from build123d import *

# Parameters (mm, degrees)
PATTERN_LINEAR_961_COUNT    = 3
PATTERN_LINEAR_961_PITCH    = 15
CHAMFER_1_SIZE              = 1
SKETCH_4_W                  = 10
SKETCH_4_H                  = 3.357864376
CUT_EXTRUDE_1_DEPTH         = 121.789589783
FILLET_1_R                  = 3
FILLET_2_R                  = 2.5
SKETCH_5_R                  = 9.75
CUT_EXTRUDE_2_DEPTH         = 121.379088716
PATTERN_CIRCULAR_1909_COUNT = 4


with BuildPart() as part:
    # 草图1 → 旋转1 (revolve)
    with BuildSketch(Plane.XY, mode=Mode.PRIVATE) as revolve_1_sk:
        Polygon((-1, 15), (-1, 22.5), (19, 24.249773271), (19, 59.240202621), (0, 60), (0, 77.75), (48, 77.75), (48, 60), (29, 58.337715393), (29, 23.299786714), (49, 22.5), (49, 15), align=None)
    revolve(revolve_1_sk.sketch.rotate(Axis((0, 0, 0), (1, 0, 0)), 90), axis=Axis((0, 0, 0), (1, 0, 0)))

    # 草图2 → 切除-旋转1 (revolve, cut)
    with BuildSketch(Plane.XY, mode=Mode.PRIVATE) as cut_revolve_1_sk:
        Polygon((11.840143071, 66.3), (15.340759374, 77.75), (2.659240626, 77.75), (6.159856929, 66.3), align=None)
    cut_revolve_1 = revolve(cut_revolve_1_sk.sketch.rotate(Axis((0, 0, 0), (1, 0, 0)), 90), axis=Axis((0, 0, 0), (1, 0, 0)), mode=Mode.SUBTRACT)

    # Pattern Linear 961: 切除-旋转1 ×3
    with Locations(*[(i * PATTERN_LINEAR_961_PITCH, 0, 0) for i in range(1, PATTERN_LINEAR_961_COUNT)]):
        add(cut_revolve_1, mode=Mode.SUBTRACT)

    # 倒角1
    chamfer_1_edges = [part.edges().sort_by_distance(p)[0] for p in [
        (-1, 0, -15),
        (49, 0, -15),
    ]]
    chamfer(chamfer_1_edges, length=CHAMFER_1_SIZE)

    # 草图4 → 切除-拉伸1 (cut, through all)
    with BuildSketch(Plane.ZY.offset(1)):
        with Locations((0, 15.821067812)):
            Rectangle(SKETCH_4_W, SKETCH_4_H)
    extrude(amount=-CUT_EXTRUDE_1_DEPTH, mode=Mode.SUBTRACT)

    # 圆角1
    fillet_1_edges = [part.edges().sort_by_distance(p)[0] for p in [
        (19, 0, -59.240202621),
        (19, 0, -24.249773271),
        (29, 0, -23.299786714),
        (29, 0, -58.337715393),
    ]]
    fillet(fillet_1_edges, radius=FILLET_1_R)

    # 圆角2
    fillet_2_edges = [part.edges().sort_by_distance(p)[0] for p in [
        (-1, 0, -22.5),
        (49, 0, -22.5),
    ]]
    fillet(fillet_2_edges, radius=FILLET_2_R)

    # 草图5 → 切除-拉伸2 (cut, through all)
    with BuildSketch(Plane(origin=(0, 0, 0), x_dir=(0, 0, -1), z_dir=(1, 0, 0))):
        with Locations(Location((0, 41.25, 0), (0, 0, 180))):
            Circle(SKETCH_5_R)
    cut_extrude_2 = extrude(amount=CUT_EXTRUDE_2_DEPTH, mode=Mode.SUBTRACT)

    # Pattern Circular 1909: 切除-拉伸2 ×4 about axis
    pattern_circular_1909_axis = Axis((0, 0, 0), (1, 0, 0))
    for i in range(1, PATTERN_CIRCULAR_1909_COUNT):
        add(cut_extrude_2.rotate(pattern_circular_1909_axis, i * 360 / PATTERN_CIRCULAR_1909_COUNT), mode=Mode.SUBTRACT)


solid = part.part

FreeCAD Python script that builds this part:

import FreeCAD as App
import Part
import Sketcher
from FreeCAD import Vector
Q = App.Units.Quantity


def edges_at(feature, points):
    """Names of the edges that pass closest to the given points."""
    edges = feature.Shape.Edges
    near = lambda p: min(range(len(edges)), key=lambda i: edges[i].distToShape(Part.Vertex(*p))[0])
    return sorted({f"Edge{near(p) + 1}" for p in points})


def add_polygon(sketch, points):
    """Adds a closed chain of lines whose ends are joined by coincident constraints."""
    first, n = sketch.GeometryCount, len(points)
    for a, b in zip(points, points[1:] + points[:1]):
        sketch.addGeometry(Part.LineSegment(App.Vector(*a, 0), App.Vector(*b, 0)), False)
    for i in range(n):
        sketch.addConstraint(Sketcher.Constraint("Coincident", first + i, 2, first + (i + 1) % n, 1))

doc = App.newDocument("Part")
body = doc.addObject("PartDesign::Body", "Body")

# Sketch on XY plane
sketch1 = body.newObject("Sketcher::SketchObject", "Sketch")
sketch1.AttachmentSupport = (doc.getObject("XY_Plane"), [""])
sketch1.MapMode = "FlatFace"
add_polygon(sketch1, [(-1, 22.5), (-1, 15), (49, 15), (49, 22.5), (29, 23.299787), (29, 58.337715), (48, 60), (48, 77.75), (0, 77.75), (0, 60), (19, 59.240203), (19, 24.249773)])  # lines 0-11
sketch1.addConstraint(Sketcher.Constraint("Vertical", 0))
sketch1.addConstraint(Sketcher.Constraint("Horizontal", 1))
sketch1.addConstraint(Sketcher.Constraint("Vertical", 2))
sketch1.addConstraint(Sketcher.Constraint("Vertical", 4))
sketch1.addConstraint(Sketcher.Constraint("Vertical", 6))
sketch1.addConstraint(Sketcher.Constraint("Horizontal", 7))
sketch1.addConstraint(Sketcher.Constraint("Vertical", 8))
sketch1.addConstraint(Sketcher.Constraint("Vertical", 10))
sketch1.addConstraint(Sketcher.Constraint("PointOnObject", 7, 2, -2))
sketch1.addConstraint(Sketcher.Constraint("Parallel", 3, 9))
sketch1.addConstraint(Sketcher.Constraint("Parallel", 5, 11))
sketch1.addConstraint(Sketcher.Constraint("Horizontal", 5, 2, 8, 2))
sketch1.addConstraint(Sketcher.Constraint("Horizontal", 2, 2, 11, 2))
sketch1.addConstraint(Sketcher.Constraint("DistanceX", 1, 1, 1, 2, 50.0))
sketch1.addConstraint(Sketcher.Constraint("DistanceX", 7, 2, 7, 1, 48.0))
sketch1.addConstraint(Sketcher.Constraint("Angle", 5, Q("5 deg")))
sketch1.addConstraint(Sketcher.Constraint("DistanceY", 0, 2, 0, 1, 7.5))
sketch1.addConstraint(Sketcher.Constraint("DistanceX", 0, 2, -1, 1, 1.0))
sketch1.addConstraint(Sketcher.Constraint("DistanceY", -1, 1, 0, 2, 15.0))
sketch1.addConstraint(Sketcher.Constraint("DistanceX", -1, 1, 3, 2, 29.0))
sketch1.addConstraint(Sketcher.Constraint("DistanceY", -1, 1, 5, 2, 60.0))
sketch1.addConstraint(Sketcher.Constraint("DistanceX", -1, 1, 9, 2, 19.0))
sketch1.addConstraint(Sketcher.Constraint("DistanceY", 6, 1, 6, 2, 17.75))
sketch1.addConstraint(Sketcher.Constraint("Angle", 3, Q("177.71 deg")))
revolution = body.newObject("PartDesign::Revolution", "Revolution")
revolution.Profile = sketch1
revolution.ReferenceAxis = (sketch1, ["H_Axis"])
revolution.Angle = 360

# Sketch on XY plane
sketch2 = body.newObject("Sketcher::SketchObject", "Sketch001")
sketch2.AttachmentSupport = (doc.getObject("XY_Plane"), [""])
sketch2.MapMode = "FlatFace"
add_polygon(sketch2, [(11.840143, 66.3), (15.340759, 77.75), (2.659241, 77.75), (6.159857, 66.3)])  # lines 0-3
sketch2.addConstraint(Sketcher.Constraint("Horizontal", 1))
sketch2.addConstraint(Sketcher.Constraint("Horizontal", 3))
sketch2.addConstraint(Sketcher.Constraint("Equal", 0, 2))
sketch2.addConstraint(Sketcher.Constraint("Angle", 0, Q("73 deg")))
sketch2.addConstraint(Sketcher.Constraint("DistanceY", -1, 1, 2, 2, 66.3))
sketch2.addConstraint(Sketcher.Constraint("DistanceY", -1, 1, 0, 2, 77.75))
sketch2.addConstraint(Sketcher.Constraint("DistanceX", 1, 2, 1, 1, 12.681519))
sketch2.addConstraint(Sketcher.Constraint("DistanceX", -1, 1, 0, 2, 15.340759))
groove = body.newObject("PartDesign::Groove", "Groove")
groove.Profile = sketch2
groove.ReferenceAxis = (sketch2, ["H_Axis"])
groove.Angle = 360
doc.recompute()

linearpattern = body.newObject("PartDesign::LinearPattern", "LinearPattern")
linearpattern.Originals = [groove]
linearpattern.Direction = (doc.getObject("X_Axis"), [""])
linearpattern.Mode = "offset"
linearpattern.Offset = 15
linearpattern.Occurrences = 3
body.Tip = linearpattern
doc.recompute()

chamfer = body.newObject("PartDesign::Chamfer", "Chamfer")
chamfer.Base = (linearpattern, edges_at(linearpattern, [(-1, 0, -15), (49, 0, -15)]))
chamfer.Size = 1

# Sketch on YZ plane
sketch3 = body.newObject("Sketcher::SketchObject", "Sketch002")
sketch3.AttachmentSupport = (doc.getObject("YZ_Plane"), [""])
sketch3.MapMode = "FlatFace"
sketch3.AttachmentOffset = App.Placement(Vector(0, 0, -1), App.Rotation())
add_polygon(sketch3, [(17.5, -5), (14.142136, -5), (14.142136, 5), (17.5, 5)])  # lines 0-3
sketch3.addConstraint(Sketcher.Constraint("Horizontal", 0))
sketch3.addConstraint(Sketcher.Constraint("Vertical", 1))
sketch3.addConstraint(Sketcher.Constraint("Horizontal", 2))
sketch3.addConstraint(Sketcher.Constraint("Vertical", 3))
sketch3.addConstraint(Sketcher.Constraint("DistanceY", 1, 1, 1, 2, 10.0))
sketch3.addConstraint(Sketcher.Constraint("DistanceY", 0, 2, -1, 1, 5.0))
sketch3.addConstraint(Sketcher.Constraint("DistanceX", -1, 1, 2, 2, 17.5))
sketch3.addConstraint(Sketcher.Constraint("DistanceX", 0, 2, 0, 1, 3.357864))
pocket1 = body.newObject("PartDesign::Pocket", "Pocket")
pocket1.Profile = sketch3
pocket1.Type = "ThroughAll"
pocket1.Reversed = True
doc.recompute()

fillet = body.newObject("PartDesign::Fillet", "Fillet")
fillet.Base = (pocket1, edges_at(pocket1, [
    (19, 0, -59.24),
    (19, 0, -24.25),
    (29, 0, -23.3),
    (29, 0, -58.338),
]))
fillet.Radius = 3
doc.recompute()

fillet2 = body.newObject("PartDesign::Fillet", "Fillet001")
fillet2.Base = (fillet, edges_at(fillet, [(-1, 0, -22.5), (49, 0, -22.5)]))
fillet2.Radius = 2.5

# Sketch on YZ plane
sketch4 = body.newObject("Sketcher::SketchObject", "Sketch003")
sketch4.AttachmentSupport = (doc.getObject("YZ_Plane"), [""])
sketch4.MapMode = "FlatFace"
sketch4.addGeometry(Part.Circle(Vector(41.25, 0, 0), Vector(0, 0, 1), 9.75), False)
sketch4.addConstraint(Sketcher.Constraint("PointOnObject", 0, 3, -1))
sketch4.addConstraint(Sketcher.Constraint("Diameter", 0, 19.5))
sketch4.addConstraint(Sketcher.Constraint("DistanceX", -1, 1, 0, 3, 41.25))
pocket2 = body.newObject("PartDesign::Pocket", "Pocket001")
pocket2.Profile = sketch4
pocket2.Type = "ThroughAll"
pocket2.Reversed = True
doc.recompute()

polarpattern = body.newObject("PartDesign::PolarPattern", "PolarPattern")
polarpattern.Originals = [pocket2]
polarpattern.Axis = (doc.getObject("X_Axis"), [""])
polarpattern.Angle = 360
polarpattern.Occurrences = 4
body.Tip = polarpattern

doc.recompute()
